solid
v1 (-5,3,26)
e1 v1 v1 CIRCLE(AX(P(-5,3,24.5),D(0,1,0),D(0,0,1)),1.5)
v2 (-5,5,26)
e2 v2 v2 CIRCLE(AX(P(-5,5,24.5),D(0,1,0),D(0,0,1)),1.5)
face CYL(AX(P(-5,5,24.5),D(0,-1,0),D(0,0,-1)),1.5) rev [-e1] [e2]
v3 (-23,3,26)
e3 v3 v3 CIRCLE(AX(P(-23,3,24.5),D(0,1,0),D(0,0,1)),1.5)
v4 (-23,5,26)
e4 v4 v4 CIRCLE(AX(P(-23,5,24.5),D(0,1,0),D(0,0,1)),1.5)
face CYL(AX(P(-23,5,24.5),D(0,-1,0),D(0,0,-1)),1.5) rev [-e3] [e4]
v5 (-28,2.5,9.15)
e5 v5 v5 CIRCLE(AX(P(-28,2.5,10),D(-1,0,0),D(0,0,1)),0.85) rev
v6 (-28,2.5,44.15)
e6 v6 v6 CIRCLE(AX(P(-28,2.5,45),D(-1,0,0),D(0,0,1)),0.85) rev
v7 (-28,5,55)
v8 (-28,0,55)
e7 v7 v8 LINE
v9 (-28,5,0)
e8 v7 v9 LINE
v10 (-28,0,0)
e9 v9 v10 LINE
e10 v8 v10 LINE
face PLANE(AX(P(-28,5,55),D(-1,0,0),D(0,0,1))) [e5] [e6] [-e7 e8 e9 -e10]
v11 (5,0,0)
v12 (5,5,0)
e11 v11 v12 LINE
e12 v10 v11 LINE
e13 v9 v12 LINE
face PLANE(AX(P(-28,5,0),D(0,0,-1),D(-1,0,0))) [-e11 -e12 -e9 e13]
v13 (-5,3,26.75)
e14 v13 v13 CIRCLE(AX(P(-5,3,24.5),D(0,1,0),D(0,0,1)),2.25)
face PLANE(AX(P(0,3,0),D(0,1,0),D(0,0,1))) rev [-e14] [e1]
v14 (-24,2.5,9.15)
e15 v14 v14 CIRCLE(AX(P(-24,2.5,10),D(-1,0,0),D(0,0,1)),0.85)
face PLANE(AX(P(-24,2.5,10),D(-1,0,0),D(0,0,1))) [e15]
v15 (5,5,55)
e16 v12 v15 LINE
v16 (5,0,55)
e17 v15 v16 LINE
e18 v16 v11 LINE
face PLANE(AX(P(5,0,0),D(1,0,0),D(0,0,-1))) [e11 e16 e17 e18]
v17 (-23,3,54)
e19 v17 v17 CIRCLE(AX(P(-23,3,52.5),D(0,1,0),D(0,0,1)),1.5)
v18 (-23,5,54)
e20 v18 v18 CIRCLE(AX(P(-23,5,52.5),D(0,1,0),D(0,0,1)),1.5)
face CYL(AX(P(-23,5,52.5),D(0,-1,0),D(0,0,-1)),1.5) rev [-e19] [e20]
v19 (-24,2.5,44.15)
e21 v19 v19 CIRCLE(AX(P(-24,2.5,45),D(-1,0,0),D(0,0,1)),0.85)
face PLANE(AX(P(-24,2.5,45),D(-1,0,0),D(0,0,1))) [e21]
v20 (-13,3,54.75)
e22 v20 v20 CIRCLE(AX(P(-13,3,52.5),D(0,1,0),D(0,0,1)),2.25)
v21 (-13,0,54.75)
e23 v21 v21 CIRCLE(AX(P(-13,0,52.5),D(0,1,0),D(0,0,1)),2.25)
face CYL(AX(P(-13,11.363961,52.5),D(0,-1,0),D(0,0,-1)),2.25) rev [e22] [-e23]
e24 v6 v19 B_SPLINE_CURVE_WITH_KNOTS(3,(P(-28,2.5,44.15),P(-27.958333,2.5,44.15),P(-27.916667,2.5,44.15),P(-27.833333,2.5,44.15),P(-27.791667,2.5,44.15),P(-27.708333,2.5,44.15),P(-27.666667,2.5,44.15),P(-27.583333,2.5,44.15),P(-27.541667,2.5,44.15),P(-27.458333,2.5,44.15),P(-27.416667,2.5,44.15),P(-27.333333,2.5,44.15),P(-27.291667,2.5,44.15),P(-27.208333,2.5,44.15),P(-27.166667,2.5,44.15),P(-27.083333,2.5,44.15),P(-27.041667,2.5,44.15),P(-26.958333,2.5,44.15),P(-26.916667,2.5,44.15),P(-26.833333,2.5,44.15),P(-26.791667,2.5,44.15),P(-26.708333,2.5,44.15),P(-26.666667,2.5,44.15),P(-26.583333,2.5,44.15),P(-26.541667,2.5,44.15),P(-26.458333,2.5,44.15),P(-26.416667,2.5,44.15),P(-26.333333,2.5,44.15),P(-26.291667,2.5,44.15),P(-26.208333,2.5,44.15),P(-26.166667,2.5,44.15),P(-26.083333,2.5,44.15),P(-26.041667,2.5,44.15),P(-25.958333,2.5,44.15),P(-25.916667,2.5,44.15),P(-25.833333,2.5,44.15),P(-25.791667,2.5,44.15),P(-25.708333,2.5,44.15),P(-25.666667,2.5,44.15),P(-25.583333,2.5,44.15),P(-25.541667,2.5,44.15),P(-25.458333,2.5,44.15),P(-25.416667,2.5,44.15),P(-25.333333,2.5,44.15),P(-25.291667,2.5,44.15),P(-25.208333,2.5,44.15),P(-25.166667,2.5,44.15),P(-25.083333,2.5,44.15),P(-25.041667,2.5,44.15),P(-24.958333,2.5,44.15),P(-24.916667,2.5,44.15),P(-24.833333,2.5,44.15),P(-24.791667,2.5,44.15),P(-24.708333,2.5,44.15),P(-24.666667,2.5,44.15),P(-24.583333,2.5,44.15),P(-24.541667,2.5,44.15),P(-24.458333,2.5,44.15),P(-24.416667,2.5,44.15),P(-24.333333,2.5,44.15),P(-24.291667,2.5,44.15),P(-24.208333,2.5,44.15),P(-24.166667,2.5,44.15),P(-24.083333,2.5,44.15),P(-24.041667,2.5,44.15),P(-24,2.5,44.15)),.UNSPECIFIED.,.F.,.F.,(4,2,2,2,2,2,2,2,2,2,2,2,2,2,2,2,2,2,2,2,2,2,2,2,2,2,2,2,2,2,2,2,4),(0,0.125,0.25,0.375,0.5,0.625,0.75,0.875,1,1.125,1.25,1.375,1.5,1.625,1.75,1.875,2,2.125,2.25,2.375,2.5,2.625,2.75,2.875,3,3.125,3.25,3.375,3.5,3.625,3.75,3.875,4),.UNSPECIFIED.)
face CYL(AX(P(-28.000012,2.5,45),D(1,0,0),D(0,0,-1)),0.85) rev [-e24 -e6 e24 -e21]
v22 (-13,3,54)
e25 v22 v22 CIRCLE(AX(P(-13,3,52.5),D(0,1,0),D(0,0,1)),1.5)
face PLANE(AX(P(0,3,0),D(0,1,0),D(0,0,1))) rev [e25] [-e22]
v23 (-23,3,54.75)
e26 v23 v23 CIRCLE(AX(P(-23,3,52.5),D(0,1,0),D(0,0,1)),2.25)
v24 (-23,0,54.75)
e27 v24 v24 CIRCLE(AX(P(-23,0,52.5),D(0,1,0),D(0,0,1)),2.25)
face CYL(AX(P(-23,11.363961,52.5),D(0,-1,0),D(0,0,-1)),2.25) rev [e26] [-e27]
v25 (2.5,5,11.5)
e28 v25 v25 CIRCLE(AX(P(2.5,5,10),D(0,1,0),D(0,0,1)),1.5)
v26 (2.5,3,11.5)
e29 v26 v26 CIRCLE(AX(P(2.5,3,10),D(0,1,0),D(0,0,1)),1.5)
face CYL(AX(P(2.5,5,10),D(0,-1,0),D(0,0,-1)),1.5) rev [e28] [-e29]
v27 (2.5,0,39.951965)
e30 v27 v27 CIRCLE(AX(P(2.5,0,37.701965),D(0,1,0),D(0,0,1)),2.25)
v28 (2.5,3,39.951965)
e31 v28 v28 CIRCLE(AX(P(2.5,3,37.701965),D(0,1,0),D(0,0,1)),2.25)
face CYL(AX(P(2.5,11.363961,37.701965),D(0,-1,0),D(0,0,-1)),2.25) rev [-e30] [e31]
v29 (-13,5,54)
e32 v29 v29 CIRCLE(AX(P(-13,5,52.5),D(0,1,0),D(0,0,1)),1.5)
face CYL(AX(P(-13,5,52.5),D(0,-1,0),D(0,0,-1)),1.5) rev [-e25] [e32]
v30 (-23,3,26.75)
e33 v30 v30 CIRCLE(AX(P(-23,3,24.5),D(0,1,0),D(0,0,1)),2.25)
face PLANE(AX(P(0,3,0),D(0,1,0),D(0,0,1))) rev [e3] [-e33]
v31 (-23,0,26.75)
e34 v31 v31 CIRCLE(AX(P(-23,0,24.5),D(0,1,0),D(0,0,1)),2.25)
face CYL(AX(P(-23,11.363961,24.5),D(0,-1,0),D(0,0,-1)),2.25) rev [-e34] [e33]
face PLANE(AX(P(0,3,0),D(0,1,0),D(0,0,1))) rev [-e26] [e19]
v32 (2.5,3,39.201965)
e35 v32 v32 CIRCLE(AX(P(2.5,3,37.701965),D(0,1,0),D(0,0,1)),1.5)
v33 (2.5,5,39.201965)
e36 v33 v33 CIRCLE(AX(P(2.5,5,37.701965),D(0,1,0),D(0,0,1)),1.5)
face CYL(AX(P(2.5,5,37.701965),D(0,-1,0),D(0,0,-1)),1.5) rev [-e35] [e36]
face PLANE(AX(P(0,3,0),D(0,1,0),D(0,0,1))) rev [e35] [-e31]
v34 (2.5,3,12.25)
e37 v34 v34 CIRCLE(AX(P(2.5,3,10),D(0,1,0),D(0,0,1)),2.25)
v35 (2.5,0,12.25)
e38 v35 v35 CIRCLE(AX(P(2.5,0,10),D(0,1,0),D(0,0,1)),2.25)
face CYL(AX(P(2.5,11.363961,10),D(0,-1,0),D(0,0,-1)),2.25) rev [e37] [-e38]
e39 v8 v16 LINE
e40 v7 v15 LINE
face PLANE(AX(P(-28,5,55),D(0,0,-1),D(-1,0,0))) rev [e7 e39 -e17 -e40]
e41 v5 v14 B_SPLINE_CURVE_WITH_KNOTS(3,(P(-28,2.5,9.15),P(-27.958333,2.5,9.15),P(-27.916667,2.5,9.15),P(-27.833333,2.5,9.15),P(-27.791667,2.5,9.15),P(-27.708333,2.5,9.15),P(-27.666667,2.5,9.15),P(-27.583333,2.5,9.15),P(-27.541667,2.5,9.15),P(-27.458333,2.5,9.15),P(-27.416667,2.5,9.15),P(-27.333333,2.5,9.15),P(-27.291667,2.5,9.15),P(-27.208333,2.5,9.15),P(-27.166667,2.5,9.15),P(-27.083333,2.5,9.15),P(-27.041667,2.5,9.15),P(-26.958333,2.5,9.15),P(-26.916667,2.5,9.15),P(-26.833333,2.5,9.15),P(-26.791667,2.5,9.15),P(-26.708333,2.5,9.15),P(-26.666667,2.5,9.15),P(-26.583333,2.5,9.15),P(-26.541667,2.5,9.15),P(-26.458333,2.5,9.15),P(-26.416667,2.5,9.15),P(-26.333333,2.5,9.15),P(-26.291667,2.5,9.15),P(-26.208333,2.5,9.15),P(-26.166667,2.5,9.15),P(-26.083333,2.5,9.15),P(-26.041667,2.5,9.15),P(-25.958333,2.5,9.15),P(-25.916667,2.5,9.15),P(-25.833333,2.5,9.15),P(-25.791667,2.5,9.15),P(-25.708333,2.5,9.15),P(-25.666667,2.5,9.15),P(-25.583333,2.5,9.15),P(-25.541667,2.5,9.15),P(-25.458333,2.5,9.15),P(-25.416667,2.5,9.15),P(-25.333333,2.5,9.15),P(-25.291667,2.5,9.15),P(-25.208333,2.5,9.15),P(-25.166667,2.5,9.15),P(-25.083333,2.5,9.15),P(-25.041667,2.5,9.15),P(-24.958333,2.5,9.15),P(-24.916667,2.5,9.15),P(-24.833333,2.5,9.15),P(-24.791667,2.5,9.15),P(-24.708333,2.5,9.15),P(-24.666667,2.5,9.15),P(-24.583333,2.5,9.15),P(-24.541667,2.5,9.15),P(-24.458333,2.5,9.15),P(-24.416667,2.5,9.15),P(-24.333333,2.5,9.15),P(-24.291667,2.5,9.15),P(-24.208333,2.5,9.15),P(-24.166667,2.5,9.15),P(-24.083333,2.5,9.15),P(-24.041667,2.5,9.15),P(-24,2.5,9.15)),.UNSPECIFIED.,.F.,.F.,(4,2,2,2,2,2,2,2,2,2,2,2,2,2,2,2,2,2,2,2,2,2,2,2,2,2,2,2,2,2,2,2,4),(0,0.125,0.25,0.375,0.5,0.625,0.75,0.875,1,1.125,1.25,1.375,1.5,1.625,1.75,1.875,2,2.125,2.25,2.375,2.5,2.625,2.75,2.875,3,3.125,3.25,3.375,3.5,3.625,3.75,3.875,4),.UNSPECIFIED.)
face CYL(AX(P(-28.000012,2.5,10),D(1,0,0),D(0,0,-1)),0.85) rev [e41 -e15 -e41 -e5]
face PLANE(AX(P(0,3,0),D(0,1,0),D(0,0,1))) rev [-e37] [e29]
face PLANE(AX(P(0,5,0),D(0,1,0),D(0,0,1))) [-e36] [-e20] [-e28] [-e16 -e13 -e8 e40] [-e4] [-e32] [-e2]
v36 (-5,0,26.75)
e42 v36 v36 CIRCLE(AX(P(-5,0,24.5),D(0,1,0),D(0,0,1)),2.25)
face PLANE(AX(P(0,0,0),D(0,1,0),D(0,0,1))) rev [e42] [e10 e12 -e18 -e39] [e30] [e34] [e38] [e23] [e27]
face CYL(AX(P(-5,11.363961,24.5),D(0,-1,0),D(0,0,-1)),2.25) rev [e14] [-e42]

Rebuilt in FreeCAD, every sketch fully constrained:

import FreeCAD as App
import Part
import Sketcher

V = App.Vector

doc = App.newDocument("Part")
body = doc.addObject("PartDesign::Body", "Body")

# Sketch on XZ plane
sketch1 = body.newObject("Sketcher::SketchObject", "Sketch")
sketch1.AttachmentSupport = (doc.getObject("XZ_Plane"), [""])
sketch1.MapMode = "FlatFace"
sketch1.addGeometry([
    Part.LineSegment(V(-28, 0, 0), V(-28, 55, 0)),  # 0
    Part.LineSegment(V(-28, 55, 0), V(0, 55, 0)),  # 1
    Part.LineSegment(V(0, 55, 0), V(0, 0, 0)),  # 2
    Part.LineSegment(V(0, 0, 0), V(-28, 0, 0)),  # 3
    Part.Circle(V(-23, 52.5, 0), V(0, 0, 1), 1.5),  # 4
    Part.Circle(V(-13, 52.5, 0), V(0, 0, 1), 1.5),  # 5
    Part.Circle(V(-23, 24.5, 0), V(0, 0, 1), 1.5),  # 6
    Part.Circle(V(-5, 24.5, 0), V(0, 0, 1), 1.5),  # 7
], False)
sketch1.addConstraint([
    Sketcher.Constraint("Coincident", 0, 2, 1, 1),
    Sketcher.Constraint("Coincident", 1, 2, 2, 1),
    Sketcher.Constraint("Coincident", 2, 2, 3, 1),
    Sketcher.Constraint("Coincident", 3, 2, 0, 1),
    Sketcher.Constraint("Vertical", 0),
    Sketcher.Constraint("Horizontal", 1),
    Sketcher.Constraint("Vertical", 2),
    Sketcher.Constraint("Horizontal", 3),
    Sketcher.Constraint("Coincident", 2, 2, -1, 1),
    Sketcher.Constraint("Equal", 4, 5),
    Sketcher.Constraint("Equal", 5, 6),
    Sketcher.Constraint("Equal", 6, 7),
    Sketcher.Constraint("Horizontal", 4, 3, 5, 3),
    Sketcher.Constraint("Horizontal", 6, 3, 7, 3),
    Sketcher.Constraint("Vertical", 4, 3, 6, 3),
    Sketcher.Constraint("Diameter", 4, 3.0),
    Sketcher.Constraint("DistanceX", 1, 1, 1, 2, 28.0),
    Sketcher.Constraint("DistanceY", 0, 1, 0, 2, 55.0),
    Sketcher.Constraint("DistanceX", 4, 3, -1, 1, 23.0),
    Sketcher.Constraint("DistanceX", 5, 3, -1, 1, 13.0),
    Sketcher.Constraint("DistanceX", 7, 3, -1, 1, 5.0),
    Sketcher.Constraint("DistanceY", 6, 3, 4, 3, 28.0),
    Sketcher.Constraint("DistanceY", -1, 1, 4, 3, 52.5),
])
pad1 = body.newObject("PartDesign::Pad", "Pad")
pad1.Profile = sketch1
pad1.Length = 5
pad1.Reversed = True

# Sketch on YZ plane
sketch2 = body.newObject("Sketcher::SketchObject", "Sketch001")
sketch2.AttachmentSupport = (doc.getObject("YZ_Plane"), [""])
sketch2.MapMode = "FlatFace"
sketch2.AttachmentOffset = App.Placement(V(0, 0, -28), App.Rotation())
sketch2.addGeometry([
    Part.Circle(V(2.5, 10, 0), V(0, 0, 1), 0.85),
    Part.Circle(V(2.5, 45, 0), V(0, 0, 1), 0.85),
], False)
sketch2.addConstraint([
    Sketcher.Constraint("Equal", 0, 1),
    Sketcher.Constraint("Vertical", 0, 3, 1, 3),
    Sketcher.Constraint("Diameter", 0, 1.7),
    Sketcher.Constraint("DistanceY", -1, 1, 0, 3, 10.0),
    Sketcher.Constraint("DistanceY", -1, 1, 1, 3, 45.0),
    Sketcher.Constraint("DistanceX", -1, 1, 0, 3, 2.5),
])
pocket1 = body.newObject("PartDesign::Pocket", "Pocket")
pocket1.Profile = sketch2
pocket1.Type = "TwoLengths"
pocket1.Length = 62.919302
pocket1.Length2 = 4

# Sketch on YZ plane
sketch3 = body.newObject("Sketcher::SketchObject", "Sketch002")
sketch3.AttachmentSupport = (doc.getObject("YZ_Plane"), [""])
sketch3.MapMode = "FlatFace"
sketch3.addGeometry([
    Part.LineSegment(V(5, 55, 0), V(0, 55, 0)),
    Part.LineSegment(V(0, 55, 0), V(0, 0, 0)),
    Part.LineSegment(V(0, 0, 0), V(5, 0, 0)),
    Part.LineSegment(V(5, 0, 0), V(5, 55, 0)),
], False)
sketch3.addConstraint([
    Sketcher.Constraint("Coincident", 0, 2, 1, 1),
    Sketcher.Constraint("Coincident", 1, 2, 2, 1),
    Sketcher.Constraint("Coincident", 2, 2, 3, 1),
    Sketcher.Constraint("Coincident", 3, 2, 0, 1),
    Sketcher.Constraint("Horizontal", 0),
    Sketcher.Constraint("Vertical", 1),
    Sketcher.Constraint("Horizontal", 2),
    Sketcher.Constraint("Vertical", 3),
    Sketcher.Constraint("Coincident", 1, 2, -1, 1),
    Sketcher.Constraint("DistanceX", 0, 2, 0, 1, 5.0),
    Sketcher.Constraint("DistanceY", 1, 2, 1, 1, 55.0),
])
pad2 = body.newObject("PartDesign::Pad", "Pad001")
pad2.Profile = sketch3
pad2.Length = 5

# Sketch on XZ plane
sketch4 = body.newObject("Sketcher::SketchObject", "Sketch003")
sketch4.AttachmentSupport = (doc.getObject("XZ_Plane"), [""])
sketch4.MapMode = "FlatFace"
sketch4.addGeometry([
    Part.Circle(V(2.5, 37.701965, 0), V(0, 0, 1), 1.5),
    Part.Circle(V(2.5, 10, 0), V(0, 0, 1), 1.5),
], False)
sketch4.addConstraint([
    Sketcher.Constraint("Equal", 0, 1),
    Sketcher.Constraint("Vertical", 0, 3, 1, 3),
    Sketcher.Constraint("Diameter", 0, 3.0),
    Sketcher.Constraint("DistanceY", -1, 1, 1, 3, 10.0),
    Sketcher.Constraint("DistanceX", -1, 1, 0, 3, 2.5),
    Sketcher.Constraint("DistanceY", -1, 1, 0, 3, 37.701965),
])
pocket2 = body.newObject("PartDesign::Pocket", "Pocket001")
pocket2.Profile = sketch4
pocket2.Type = "ThroughAll"

# Sketch on XZ plane
sketch5 = body.newObject("Sketcher::SketchObject", "Sketch004")
sketch5.AttachmentSupport = (doc.getObject("XZ_Plane"), [""])
sketch5.MapMode = "FlatFace"
sketch5.addGeometry([
    Part.Circle(V(-23, 24.5, 0), V(0, 0, 1), 2.25),  # 0
    Part.Circle(V(-5, 24.5, 0), V(0, 0, 1), 2.25),  # 1
    Part.Circle(V(-13, 52.5, 0), V(0, 0, 1), 2.25),  # 2
    Part.Circle(V(2.5, 37.701965, 0), V(0, 0, 1), 2.25),  # 3
    Part.Circle(V(-23, 52.5, 0), V(0, 0, 1), 2.25),  # 4
    Part.Circle(V(2.5, 10, 0), V(0, 0, 1), 2.25),  # 5
], False)
sketch5.addConstraint([
    Sketcher.Constraint("Equal", 0, 1),
    Sketcher.Constraint("Equal", 1, 2),
    Sketcher.Constraint("Equal", 2, 3),
    Sketcher.Constraint("Equal", 3, 4),
    Sketcher.Constraint("Equal", 4, 5),
    Sketcher.Constraint("Horizontal", 0, 3, 1, 3),
    Sketcher.Constraint("Horizontal", 2, 3, 4, 3),
    Sketcher.Constraint("Vertical", 0, 3, 4, 3),
    Sketcher.Constraint("Vertical", 3, 3, 5, 3),
    Sketcher.Constraint("Diameter", 0, 4.5),
    Sketcher.Constraint("DistanceX", 0, 3, -1, 1, 23.0),
    Sketcher.Constraint("DistanceX", 1, 3, -1, 1, 5.0),
    Sketcher.Constraint("DistanceX", 2, 3, -1, 1, 13.0),
    Sketcher.Constraint("DistanceY", -1, 1, 5, 3, 10.0),
    Sketcher.Constraint("DistanceY", 1, 3, 2, 3, 28.0),
    Sketcher.Constraint("DistanceY", -1, 1, 0, 3, 24.5),
    Sketcher.Constraint("DistanceX", -1, 1, 3, 3, 2.5),
    Sketcher.Constraint("DistanceY", -1, 1, 3, 3, 37.701965),
])
pocket3 = body.newObject("PartDesign::Pocket", "Pocket002")
pocket3.Profile = sketch5
pocket3.Length = 3

doc.recompute()
